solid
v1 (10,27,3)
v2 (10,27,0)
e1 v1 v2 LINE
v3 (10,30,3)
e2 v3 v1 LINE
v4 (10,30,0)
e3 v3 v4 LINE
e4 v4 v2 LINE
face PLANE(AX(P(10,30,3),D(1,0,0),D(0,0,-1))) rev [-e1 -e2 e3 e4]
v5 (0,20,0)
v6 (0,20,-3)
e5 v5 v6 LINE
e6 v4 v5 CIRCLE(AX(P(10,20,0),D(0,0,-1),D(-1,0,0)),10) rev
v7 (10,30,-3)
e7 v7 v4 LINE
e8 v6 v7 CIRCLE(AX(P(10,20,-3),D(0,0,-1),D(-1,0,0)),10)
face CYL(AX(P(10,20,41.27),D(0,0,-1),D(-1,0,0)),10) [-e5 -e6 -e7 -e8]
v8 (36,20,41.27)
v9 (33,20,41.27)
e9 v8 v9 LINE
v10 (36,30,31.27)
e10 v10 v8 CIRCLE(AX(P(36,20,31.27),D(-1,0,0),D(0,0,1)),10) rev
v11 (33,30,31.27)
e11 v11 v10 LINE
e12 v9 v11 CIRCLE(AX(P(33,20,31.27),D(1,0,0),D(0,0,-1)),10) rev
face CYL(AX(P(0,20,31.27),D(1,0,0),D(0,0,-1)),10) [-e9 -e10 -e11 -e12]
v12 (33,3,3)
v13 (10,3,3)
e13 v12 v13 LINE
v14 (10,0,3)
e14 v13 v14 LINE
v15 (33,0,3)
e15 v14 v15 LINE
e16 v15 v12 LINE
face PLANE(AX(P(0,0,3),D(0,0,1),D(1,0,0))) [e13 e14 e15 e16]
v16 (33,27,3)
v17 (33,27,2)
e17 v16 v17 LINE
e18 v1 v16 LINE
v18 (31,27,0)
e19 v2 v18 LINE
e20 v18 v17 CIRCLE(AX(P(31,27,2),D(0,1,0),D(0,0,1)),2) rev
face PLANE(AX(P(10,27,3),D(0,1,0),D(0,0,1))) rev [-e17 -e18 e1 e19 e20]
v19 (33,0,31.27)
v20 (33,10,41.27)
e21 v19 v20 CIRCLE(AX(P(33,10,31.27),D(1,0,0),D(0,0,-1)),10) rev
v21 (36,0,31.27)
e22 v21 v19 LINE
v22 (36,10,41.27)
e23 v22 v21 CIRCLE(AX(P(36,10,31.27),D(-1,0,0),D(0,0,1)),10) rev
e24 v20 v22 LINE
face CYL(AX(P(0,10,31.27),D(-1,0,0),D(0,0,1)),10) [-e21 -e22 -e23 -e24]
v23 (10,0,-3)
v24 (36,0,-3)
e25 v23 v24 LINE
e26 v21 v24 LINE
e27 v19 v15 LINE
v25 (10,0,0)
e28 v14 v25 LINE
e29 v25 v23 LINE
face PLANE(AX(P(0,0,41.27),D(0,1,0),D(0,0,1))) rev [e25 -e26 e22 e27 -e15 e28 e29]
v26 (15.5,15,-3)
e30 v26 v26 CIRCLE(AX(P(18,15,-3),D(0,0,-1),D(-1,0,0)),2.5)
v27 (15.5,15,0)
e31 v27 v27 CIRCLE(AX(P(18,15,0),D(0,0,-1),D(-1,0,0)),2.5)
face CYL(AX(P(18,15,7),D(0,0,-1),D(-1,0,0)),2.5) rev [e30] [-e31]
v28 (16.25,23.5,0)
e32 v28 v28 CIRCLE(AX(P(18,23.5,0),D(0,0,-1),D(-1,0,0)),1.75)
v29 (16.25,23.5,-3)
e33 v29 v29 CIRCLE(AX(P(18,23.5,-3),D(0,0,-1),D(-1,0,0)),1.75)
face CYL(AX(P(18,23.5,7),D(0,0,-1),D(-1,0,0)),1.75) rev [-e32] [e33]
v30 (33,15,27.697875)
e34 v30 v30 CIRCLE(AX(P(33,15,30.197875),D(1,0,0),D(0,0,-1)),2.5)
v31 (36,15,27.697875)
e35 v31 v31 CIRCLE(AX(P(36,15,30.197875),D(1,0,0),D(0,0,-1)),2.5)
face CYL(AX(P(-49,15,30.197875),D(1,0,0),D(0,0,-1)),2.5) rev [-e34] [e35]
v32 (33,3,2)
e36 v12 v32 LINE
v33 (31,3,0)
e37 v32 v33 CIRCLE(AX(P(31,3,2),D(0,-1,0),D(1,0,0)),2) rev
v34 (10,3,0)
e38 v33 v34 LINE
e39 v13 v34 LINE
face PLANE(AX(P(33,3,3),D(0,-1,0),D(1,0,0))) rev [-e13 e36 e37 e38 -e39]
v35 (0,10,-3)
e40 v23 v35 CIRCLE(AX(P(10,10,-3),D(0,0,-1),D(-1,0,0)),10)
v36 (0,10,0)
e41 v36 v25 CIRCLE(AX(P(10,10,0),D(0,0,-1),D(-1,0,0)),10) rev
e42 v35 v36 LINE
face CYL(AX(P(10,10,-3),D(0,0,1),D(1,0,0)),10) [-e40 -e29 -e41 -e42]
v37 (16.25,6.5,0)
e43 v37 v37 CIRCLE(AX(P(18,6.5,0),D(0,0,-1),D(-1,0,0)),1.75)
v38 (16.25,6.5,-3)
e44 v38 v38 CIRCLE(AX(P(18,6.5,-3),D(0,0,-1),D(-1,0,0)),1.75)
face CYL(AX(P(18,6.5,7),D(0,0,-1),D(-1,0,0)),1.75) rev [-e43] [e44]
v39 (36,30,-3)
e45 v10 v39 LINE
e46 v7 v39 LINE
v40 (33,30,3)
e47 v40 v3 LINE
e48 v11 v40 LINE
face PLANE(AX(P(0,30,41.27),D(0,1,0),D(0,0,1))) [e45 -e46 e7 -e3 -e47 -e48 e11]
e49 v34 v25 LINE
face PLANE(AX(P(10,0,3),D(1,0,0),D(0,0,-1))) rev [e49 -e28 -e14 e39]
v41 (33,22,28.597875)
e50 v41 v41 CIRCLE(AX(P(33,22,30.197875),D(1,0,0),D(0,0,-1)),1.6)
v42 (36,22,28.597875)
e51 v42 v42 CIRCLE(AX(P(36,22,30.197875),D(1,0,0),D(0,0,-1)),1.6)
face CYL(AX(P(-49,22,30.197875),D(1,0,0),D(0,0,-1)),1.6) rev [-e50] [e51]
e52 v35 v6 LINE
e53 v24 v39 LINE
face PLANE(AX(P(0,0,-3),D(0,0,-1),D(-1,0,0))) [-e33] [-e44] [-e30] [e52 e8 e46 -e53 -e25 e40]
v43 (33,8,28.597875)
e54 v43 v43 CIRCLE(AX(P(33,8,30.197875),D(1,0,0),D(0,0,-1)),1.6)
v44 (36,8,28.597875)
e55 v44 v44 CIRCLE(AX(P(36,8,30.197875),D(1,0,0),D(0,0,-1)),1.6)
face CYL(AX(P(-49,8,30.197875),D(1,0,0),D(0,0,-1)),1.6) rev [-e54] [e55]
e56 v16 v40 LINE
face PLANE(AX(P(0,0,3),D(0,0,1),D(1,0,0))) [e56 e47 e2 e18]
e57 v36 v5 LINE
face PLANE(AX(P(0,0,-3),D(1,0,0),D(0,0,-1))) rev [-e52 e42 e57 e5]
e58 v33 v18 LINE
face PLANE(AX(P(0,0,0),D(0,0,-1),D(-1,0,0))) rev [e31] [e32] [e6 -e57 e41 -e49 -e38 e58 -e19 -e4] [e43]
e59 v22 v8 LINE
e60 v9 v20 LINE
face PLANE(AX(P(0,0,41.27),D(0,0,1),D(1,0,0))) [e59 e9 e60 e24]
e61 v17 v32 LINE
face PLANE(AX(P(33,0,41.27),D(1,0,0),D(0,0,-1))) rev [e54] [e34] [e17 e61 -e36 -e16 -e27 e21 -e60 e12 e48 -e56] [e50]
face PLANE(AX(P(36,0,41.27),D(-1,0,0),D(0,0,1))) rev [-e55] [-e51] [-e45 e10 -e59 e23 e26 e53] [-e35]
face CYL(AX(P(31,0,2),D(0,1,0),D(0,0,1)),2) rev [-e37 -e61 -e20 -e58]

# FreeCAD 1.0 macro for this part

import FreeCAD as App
import Part
import Sketcher
Q = App.Units.Quantity


def edges_at(feature, points):
    """Names of the edges that pass closest to the given points."""
    edges = feature.Shape.Edges
    near = lambda p: min(range(len(edges)), key=lambda i: edges[i].distToShape(Part.Vertex(*p))[0])
    return sorted({f"Edge{near(p) + 1}" for p in points})


def add_polygon(sketch, points):
    """Adds a closed chain of lines whose ends are joined by coincident constraints."""
    first, n = sketch.GeometryCount, len(points)
    for a, b in zip(points, points[1:] + points[:1]):
        sketch.addGeometry(Part.LineSegment(App.Vector(*a, 0), App.Vector(*b, 0)), False)
    for i in range(n):
        sketch.addConstraint(Sketcher.Constraint("Coincident", first + i, 2, first + (i + 1) % n, 1))

doc = App.newDocument("Part")
body = doc.addObject("PartDesign::Body", "Body")

# Sketch on XY plane
sketch1 = body.newObject("Sketcher::SketchObject", "Sketch")
sketch1.AttachmentSupport = (doc.getObject("XY_Plane"), [""])
sketch1.MapMode = "FlatFace"
add_polygon(sketch1, [(33, 30), (33, 0), (36, 0), (36, 30)])  # lines 0-3
sketch1.addConstraint(Sketcher.Constraint("Vertical", 0))
sketch1.addConstraint(Sketcher.Constraint("Horizontal", 1))
sketch1.addConstraint(Sketcher.Constraint("Vertical", 2))
sketch1.addConstraint(Sketcher.Constraint("Horizontal", 3))
sketch1.addConstraint(Sketcher.Constraint("PointOnObject", 0, 2, -1))
sketch1.addConstraint(Sketcher.Constraint("DistanceX", 1, 1, 1, 2, Q("3 mm")))
sketch1.addConstraint(Sketcher.Constraint("DistanceY", 0, 2, 0, 1, Q("30 mm")))
sketch1.addConstraint(Sketcher.Constraint("DistanceX", -1, 1, 0, 2, Q("33 mm")))
pad1 = body.newObject("PartDesign::Pad", "Pad")
pad1.Profile = sketch1
pad1.Length = 41.27

# Sketch on XY plane
sketch2 = body.newObject("Sketcher::SketchObject", "Sketch001")
sketch2.AttachmentSupport = (doc.getObject("XY_Plane"), [""])
sketch2.MapMode = "FlatFace"
add_polygon(sketch2, [(0, 30), (0, 0), (36, 0), (36, 30)])  # lines 0-3
sketch2.addConstraint(Sketcher.Constraint("Vertical", 0))
sketch2.addConstraint(Sketcher.Constraint("Horizontal", 1))
sketch2.addConstraint(Sketcher.Constraint("Vertical", 2))
sketch2.addConstraint(Sketcher.Constraint("Horizontal", 3))
sketch2.addConstraint(Sketcher.Constraint("Coincident", 0, 2, -1, 1))
sketch2.addConstraint(Sketcher.Constraint("DistanceX", 1, 1, 1, 2, Q("36 mm")))
sketch2.addConstraint(Sketcher.Constraint("DistanceY", 0, 2, 0, 1, Q("30 mm")))
pad2 = body.newObject("PartDesign::Pad", "Pad001")
pad2.Profile = sketch2
pad2.Length = 3
pad2.Reversed = True

# Sketch on YZ plane
sketch3 = body.newObject("Sketcher::SketchObject", "Sketch002")
sketch3.AttachmentSupport = (doc.getObject("YZ_Plane"), [""])
sketch3.MapMode = "FlatFace"
sketch3.AttachmentOffset = App.Placement(App.Vector(0, 0, 36), App.Rotation())
sketch3.addGeometry(Part.Circle(App.Vector(15, 30.197875, 0), App.Vector(0, 0, 1), 2.5), False)
sketch3.addGeometry(Part.Circle(App.Vector(22, 30.197875, 0), App.Vector(0, 0, 1), 1.6), False)
sketch3.addGeometry(Part.Circle(App.Vector(8, 30.197875, 0), App.Vector(0, 0, 1), 1.6), False)
sketch3.addConstraint(Sketcher.Constraint("Equal", 1, 2))
sketch3.addConstraint(Sketcher.Constraint("Horizontal", 0, 3, 1, 3))
sketch3.addConstraint(Sketcher.Constraint("Horizontal", 1, 3, 2, 3))
sketch3.addConstraint(Sketcher.Constraint("Diameter", 0, Q("5 mm")))
sketch3.addConstraint(Sketcher.Constraint("Diameter", 1, Q("3.2 mm")))
sketch3.addConstraint(Sketcher.Constraint("DistanceX", -1, 1, 0, 3, Q("15 mm")))
sketch3.addConstraint(Sketcher.Constraint("DistanceX", -1, 1, 1, 3, Q("22 mm")))
sketch3.addConstraint(Sketcher.Constraint("DistanceX", -1, 1, 2, 3, Q("8 mm")))
sketch3.addConstraint(Sketcher.Constraint("DistanceY", -1, 1, 0, 3, Q("30.197875 mm")))
pocket1 = body.newObject("PartDesign::Pocket", "Pocket")
pocket1.Profile = sketch3
pocket1.Length = 85
doc.recompute()

fillet = body.newObject("PartDesign::Fillet", "Fillet")
fillet.Base = (pocket1, edges_at(pocket1, [(33, 15, 0)]))
fillet.Radius = 2
doc.recompute()

fillet2 = body.newObject("PartDesign::Fillet", "Fillet001")
fillet2.Base = (fillet, edges_at(fillet, [
    (34.5, 0, 41.27),
    (0, 0, -1.5),
    (0, 30, -1.5),
    (34.5, 30, 41.27),
]))
fillet2.Radius = 10

# Sketch on XY plane
sketch4 = body.newObject("Sketcher::SketchObject", "Sketch003")
sketch4.AttachmentSupport = (doc.getObject("XY_Plane"), [""])
sketch4.MapMode = "FlatFace"
sketch4.AttachmentOffset = App.Placement(App.Vector(0, 0, -3), App.Rotation())
sketch4.addGeometry(Part.Circle(App.Vector(18, 15, 0), App.Vector(0, 0, 1), 2.5), False)
sketch4.addGeometry(Part.Circle(App.Vector(18, 23.5, 0), App.Vector(0, 0, 1), 1.75), False)
sketch4.addGeometry(Part.Circle(App.Vector(18, 6.5, 0), App.Vector(0, 0, 1), 1.75), False)
sketch4.addConstraint(Sketcher.Constraint("Equal", 1, 2))
sketch4.addConstraint(Sketcher.Constraint("Vertical", 0, 3, 1, 3))
sketch4.addConstraint(Sketcher.Constraint("Vertical", 1, 3, 2, 3))
sketch4.addConstraint(Sketcher.Constraint("Diameter", 0, Q("5 mm")))
sketch4.addConstraint(Sketcher.Constraint("Diameter", 1, Q("3.5 mm")))
sketch4.addConstraint(Sketcher.Constraint("DistanceX", -1, 1, 0, 3, Q("18 mm")))
sketch4.addConstraint(Sketcher.Constraint("DistanceY", -1, 1, 0, 3, Q("15 mm")))
sketch4.addConstraint(Sketcher.Constraint("DistanceY", 2, 3, 1, 3, Q("17 mm")))
sketch4.addConstraint(Sketcher.Constraint("DistanceY", -1, 1, 1, 3, Q("23.5 mm")))
pocket2 = body.newObject("PartDesign::Pocket", "Pocket001")
pocket2.Profile = sketch4
pocket2.Length = 10
pocket2.Reversed = True

# Sketch on XY plane
sketch5 = body.newObject("Sketcher::SketchObject", "Sketch004")
sketch5.AttachmentSupport = (doc.getObject("XY_Plane"), [""])
sketch5.MapMode = "FlatFace"
add_polygon(sketch5, [(10, 30), (10, 27), (33, 27), (33, 30)])  # lines 0-3
add_polygon(sketch5, [(10, 3), (10, 0), (33, 0), (33, 3)])  # lines 4-7
sketch5.addConstraint(Sketcher.Constraint("Vertical", 0))
sketch5.addConstraint(Sketcher.Constraint("Horizontal", 1))
sketch5.addConstraint(Sketcher.Constraint("Vertical", 2))
sketch5.addConstraint(Sketcher.Constraint("Horizontal", 3))
sketch5.addConstraint(Sketcher.Constraint("Vertical", 4))
sketch5.addConstraint(Sketcher.Constraint("Horizontal", 5))
sketch5.addConstraint(Sketcher.Constraint("Vertical", 6))
sketch5.addConstraint(Sketcher.Constraint("Horizontal", 7))
sketch5.addConstraint(Sketcher.Constraint("PointOnObject", 4, 2, -1))
sketch5.addConstraint(Sketcher.Constraint("Vertical", 3, 2, 4, 2))
sketch5.addConstraint(Sketcher.Constraint("Vertical", 2, 2, 5, 2))
sketch5.addConstraint(Sketcher.Constraint("Equal", 2, 4))
sketch5.addConstraint(Sketcher.Constraint("DistanceX", 1, 1, 1, 2, Q("23 mm")))
sketch5.addConstraint(Sketcher.Constraint("DistanceY", 0, 2, 0, 1, Q("3 mm")))
sketch5.addConstraint(Sketcher.Constraint("DistanceX", -1, 1, 0, 2, Q("10 mm")))
sketch5.addConstraint(Sketcher.Constraint("DistanceY", -1, 1, 0, 2, Q("27 mm")))
pad3 = body.newObject("PartDesign::Pad", "Pad002")
pad3.Profile = sketch5
pad3.Length = 3

doc.recompute()
